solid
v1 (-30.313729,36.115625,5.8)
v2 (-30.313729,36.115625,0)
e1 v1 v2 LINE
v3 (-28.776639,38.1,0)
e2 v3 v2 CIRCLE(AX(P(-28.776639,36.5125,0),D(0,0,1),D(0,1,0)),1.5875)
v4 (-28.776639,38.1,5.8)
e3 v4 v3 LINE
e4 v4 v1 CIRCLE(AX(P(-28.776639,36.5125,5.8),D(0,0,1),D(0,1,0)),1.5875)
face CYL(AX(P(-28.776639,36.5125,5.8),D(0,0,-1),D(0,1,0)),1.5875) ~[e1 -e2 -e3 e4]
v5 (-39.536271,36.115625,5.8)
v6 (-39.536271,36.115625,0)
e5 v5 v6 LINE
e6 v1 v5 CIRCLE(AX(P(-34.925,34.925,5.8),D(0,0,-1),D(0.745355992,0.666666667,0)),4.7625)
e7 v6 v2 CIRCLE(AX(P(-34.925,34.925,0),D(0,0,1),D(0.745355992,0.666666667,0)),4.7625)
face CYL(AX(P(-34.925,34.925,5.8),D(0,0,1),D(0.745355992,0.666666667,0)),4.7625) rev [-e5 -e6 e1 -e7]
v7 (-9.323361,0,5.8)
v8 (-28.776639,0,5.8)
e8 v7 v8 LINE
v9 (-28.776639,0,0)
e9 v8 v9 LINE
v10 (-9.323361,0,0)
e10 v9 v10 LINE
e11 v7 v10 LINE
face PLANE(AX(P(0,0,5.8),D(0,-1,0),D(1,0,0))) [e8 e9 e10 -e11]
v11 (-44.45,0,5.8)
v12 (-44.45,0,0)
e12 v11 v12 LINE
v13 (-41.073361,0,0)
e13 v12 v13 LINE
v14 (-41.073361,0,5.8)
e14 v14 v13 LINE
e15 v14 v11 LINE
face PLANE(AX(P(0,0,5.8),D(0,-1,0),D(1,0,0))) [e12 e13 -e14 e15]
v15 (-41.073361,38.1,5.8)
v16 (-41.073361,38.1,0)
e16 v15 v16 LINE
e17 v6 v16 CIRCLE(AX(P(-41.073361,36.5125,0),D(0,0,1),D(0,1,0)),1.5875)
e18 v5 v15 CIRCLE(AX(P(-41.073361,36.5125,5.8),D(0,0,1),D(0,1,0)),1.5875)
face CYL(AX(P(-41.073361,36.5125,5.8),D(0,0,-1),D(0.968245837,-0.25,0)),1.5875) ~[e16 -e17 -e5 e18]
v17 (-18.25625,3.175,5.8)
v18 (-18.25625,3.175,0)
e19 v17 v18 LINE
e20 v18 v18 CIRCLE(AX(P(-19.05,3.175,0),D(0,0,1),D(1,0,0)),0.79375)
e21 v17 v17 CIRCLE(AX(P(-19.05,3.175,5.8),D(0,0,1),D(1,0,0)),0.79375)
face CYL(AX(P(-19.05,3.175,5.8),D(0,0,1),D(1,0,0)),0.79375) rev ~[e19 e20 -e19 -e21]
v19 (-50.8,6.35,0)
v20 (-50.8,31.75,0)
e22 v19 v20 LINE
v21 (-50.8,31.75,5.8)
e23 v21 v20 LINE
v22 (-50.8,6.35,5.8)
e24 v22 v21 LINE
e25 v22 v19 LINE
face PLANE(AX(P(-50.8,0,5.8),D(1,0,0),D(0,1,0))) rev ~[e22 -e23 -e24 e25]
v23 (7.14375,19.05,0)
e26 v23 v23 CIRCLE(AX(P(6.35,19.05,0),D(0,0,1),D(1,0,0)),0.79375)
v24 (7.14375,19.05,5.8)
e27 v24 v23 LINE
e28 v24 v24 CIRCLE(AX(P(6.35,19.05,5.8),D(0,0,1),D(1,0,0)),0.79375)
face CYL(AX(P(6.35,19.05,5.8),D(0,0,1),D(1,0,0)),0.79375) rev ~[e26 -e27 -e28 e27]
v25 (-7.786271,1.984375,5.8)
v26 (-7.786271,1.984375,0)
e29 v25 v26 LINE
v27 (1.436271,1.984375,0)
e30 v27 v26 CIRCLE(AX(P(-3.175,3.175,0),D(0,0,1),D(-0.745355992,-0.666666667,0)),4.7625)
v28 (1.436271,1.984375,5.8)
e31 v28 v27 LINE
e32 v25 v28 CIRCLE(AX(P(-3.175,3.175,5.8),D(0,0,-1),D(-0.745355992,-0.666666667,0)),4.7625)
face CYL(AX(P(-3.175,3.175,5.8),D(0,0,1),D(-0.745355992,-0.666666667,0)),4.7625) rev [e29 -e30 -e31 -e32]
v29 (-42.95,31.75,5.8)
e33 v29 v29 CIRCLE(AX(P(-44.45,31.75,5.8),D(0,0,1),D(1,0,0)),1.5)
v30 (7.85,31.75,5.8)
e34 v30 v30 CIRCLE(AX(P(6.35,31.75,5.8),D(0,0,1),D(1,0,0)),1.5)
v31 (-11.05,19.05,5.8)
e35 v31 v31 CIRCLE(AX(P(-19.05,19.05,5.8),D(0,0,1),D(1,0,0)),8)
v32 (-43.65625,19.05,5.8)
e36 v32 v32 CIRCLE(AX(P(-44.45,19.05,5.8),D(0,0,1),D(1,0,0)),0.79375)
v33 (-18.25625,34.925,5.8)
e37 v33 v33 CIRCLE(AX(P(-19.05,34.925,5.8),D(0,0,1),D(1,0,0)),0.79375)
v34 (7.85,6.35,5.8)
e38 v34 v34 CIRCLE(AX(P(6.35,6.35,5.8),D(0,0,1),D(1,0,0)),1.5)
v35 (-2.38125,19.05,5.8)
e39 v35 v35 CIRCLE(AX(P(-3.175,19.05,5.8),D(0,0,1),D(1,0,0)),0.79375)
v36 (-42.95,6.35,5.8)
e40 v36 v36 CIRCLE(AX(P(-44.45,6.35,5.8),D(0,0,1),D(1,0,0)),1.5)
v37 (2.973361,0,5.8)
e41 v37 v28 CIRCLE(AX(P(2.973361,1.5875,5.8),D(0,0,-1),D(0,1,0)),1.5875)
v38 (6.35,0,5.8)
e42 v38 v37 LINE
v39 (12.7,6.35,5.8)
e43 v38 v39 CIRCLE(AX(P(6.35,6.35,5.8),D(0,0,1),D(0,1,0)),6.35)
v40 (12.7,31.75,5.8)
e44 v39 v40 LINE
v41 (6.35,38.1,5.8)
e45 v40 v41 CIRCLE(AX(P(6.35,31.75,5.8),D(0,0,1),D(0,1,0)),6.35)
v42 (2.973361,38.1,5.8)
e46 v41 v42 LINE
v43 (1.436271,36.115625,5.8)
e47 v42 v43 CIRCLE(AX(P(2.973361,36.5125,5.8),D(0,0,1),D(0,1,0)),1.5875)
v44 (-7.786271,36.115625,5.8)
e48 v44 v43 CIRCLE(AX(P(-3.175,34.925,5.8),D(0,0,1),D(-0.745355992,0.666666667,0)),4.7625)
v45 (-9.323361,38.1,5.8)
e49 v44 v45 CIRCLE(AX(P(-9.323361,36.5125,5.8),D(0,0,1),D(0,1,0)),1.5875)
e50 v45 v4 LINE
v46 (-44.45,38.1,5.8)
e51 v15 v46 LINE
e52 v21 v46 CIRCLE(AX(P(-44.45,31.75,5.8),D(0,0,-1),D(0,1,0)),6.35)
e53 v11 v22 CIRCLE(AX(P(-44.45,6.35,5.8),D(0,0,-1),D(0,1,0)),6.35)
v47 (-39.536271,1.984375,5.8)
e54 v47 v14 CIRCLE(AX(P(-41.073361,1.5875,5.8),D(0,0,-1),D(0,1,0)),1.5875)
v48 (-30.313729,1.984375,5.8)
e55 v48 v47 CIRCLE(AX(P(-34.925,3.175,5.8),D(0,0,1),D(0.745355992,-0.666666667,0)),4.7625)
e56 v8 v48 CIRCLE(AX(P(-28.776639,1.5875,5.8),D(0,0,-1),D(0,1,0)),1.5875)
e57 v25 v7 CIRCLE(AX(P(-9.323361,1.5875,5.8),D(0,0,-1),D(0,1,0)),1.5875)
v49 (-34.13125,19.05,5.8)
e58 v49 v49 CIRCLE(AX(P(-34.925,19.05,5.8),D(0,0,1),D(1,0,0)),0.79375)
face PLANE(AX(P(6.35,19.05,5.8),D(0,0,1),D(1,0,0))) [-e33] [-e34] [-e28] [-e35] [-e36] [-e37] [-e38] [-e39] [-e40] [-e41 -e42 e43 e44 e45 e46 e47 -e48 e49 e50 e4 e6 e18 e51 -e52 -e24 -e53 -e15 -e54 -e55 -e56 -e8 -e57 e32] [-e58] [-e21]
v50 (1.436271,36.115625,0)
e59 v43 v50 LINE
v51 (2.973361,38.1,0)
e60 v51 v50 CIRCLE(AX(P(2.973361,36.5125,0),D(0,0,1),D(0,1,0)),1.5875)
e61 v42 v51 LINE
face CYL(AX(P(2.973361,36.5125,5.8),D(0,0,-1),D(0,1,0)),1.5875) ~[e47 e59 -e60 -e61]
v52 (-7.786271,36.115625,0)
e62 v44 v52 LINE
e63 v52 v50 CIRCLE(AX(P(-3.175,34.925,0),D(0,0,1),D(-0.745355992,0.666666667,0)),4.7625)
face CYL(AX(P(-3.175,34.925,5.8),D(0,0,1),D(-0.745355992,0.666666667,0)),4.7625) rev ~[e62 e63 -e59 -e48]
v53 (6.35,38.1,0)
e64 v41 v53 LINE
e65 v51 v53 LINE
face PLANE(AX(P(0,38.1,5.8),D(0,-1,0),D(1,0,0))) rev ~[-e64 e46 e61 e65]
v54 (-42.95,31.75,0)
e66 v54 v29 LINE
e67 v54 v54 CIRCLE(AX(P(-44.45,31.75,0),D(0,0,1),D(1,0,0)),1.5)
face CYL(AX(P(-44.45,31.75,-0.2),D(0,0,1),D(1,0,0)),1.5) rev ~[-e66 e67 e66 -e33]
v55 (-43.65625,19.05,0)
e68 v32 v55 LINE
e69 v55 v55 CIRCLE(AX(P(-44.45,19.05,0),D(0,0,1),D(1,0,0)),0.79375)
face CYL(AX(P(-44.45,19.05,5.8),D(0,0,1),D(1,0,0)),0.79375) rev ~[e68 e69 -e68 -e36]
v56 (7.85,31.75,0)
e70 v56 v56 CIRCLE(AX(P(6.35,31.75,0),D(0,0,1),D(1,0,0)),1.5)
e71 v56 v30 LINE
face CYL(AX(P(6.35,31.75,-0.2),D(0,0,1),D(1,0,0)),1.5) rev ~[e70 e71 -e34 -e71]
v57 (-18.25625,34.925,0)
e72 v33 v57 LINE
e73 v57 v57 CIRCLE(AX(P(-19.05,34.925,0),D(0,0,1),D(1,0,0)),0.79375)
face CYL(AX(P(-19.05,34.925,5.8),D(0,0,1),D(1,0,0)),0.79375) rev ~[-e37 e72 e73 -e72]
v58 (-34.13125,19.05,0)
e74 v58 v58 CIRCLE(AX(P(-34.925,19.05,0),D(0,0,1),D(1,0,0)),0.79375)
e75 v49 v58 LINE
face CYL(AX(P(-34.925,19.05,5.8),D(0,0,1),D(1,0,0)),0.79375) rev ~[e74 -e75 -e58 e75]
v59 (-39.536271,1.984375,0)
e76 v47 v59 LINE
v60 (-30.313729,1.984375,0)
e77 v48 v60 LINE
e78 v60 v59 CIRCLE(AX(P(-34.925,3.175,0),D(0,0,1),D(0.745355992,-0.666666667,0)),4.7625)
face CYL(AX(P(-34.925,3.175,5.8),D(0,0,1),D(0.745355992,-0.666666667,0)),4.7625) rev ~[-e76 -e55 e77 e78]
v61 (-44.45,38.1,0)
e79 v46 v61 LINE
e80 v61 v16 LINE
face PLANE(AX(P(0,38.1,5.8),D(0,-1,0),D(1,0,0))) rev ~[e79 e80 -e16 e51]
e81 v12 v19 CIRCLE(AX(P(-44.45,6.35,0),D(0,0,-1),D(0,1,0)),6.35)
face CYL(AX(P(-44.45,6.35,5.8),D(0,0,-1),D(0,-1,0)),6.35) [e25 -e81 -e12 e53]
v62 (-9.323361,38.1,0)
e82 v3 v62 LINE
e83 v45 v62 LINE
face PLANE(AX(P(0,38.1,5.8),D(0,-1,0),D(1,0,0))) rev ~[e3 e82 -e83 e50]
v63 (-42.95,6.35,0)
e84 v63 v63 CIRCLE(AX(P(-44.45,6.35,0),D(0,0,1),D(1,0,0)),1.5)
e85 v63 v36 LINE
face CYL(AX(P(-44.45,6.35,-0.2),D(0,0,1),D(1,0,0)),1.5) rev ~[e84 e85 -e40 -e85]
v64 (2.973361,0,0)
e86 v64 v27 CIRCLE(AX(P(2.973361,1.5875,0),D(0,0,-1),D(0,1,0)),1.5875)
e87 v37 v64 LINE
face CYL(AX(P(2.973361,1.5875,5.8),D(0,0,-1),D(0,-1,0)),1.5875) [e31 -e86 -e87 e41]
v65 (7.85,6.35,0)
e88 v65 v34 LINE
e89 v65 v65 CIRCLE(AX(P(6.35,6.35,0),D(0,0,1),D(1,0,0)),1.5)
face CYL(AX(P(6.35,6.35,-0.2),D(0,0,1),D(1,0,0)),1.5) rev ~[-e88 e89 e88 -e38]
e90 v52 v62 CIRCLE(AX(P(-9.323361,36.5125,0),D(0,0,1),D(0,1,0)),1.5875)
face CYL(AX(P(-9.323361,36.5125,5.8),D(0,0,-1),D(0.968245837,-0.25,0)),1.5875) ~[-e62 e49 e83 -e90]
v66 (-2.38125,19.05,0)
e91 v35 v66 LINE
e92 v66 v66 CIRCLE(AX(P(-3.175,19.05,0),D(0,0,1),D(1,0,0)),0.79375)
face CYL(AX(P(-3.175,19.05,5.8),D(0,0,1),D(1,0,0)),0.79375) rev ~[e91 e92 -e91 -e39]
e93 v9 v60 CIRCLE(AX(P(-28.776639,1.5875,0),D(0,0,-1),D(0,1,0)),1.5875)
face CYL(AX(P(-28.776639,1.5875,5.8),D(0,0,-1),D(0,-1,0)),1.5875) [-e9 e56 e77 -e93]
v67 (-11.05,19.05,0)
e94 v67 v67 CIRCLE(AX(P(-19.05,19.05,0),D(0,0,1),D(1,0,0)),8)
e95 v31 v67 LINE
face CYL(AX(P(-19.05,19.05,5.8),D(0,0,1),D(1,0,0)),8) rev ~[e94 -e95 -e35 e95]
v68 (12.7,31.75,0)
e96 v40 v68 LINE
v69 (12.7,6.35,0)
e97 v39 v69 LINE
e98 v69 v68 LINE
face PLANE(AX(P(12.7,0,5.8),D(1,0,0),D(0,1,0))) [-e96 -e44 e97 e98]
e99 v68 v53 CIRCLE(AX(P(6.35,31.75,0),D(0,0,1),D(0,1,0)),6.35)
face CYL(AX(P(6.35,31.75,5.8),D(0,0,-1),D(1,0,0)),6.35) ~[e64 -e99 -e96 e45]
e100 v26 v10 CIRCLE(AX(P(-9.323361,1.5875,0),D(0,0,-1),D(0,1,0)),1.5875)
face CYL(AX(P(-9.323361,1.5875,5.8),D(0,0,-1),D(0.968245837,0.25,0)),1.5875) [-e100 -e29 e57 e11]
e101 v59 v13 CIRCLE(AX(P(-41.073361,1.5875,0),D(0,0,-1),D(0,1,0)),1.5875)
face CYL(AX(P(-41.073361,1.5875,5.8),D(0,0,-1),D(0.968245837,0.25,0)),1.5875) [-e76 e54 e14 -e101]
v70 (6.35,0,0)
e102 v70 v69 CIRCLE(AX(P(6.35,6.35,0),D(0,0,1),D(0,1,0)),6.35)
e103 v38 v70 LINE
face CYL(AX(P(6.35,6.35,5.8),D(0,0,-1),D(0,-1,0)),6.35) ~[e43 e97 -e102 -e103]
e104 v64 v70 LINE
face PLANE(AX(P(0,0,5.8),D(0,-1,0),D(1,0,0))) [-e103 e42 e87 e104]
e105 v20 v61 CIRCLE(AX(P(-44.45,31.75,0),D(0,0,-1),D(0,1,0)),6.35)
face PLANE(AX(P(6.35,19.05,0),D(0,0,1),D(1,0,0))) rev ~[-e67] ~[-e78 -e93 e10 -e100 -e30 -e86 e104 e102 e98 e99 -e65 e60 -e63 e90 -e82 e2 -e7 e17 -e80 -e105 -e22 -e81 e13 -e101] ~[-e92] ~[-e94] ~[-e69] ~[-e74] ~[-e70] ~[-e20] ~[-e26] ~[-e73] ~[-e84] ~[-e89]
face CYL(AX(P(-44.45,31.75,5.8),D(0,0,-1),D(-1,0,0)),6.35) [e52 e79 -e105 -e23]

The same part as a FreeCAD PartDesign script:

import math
import FreeCAD as App
import Part
import Sketcher
Q = App.Units.Quantity


def edges_at(feature, points):
    """Names of the edges that pass closest to the given points."""
    edges = feature.Shape.Edges
    near = lambda p: min(range(len(edges)), key=lambda i: edges[i].distToShape(Part.Vertex(*p))[0])
    return sorted({f"Edge{near(p) + 1}" for p in points})


def add_polygon(sketch, points):
    """Adds a closed chain of lines whose ends are joined by coincident constraints."""
    first, n = sketch.GeometryCount, len(points)
    for a, b in zip(points, points[1:] + points[:1]):
        sketch.addGeometry(Part.LineSegment(App.Vector(*a, 0), App.Vector(*b, 0)), False)
    for i in range(n):
        sketch.addConstraint(Sketcher.Constraint("Coincident", first + i, 2, first + (i + 1) % n, 1))

doc = App.newDocument("Part")
body = doc.addObject("PartDesign::Body", "Body")

sketch1 = body.newObject("Sketcher::SketchObject", "Sketch")
sketch1.AttachmentSupport = (doc.getObject("XY_Plane"), [""])
sketch1.MapMode = "FlatFace"
add_polygon(sketch1, [(-38.1, 38.1), (-38.1, 0), (0, 0), (0, 38.1)])
sketch1.addConstraint([
    Sketcher.Constraint("Vertical", 0),
    Sketcher.Constraint("Horizontal", 1),
    Sketcher.Constraint("Vertical", 2),
    Sketcher.Constraint("Horizontal", 3),
    Sketcher.Constraint("Coincident", 1, 2, -1, 1),
    Sketcher.Constraint("Equal", 3, 0),
    Sketcher.Constraint("DistanceX", 1, 1, 1, 2, Q("1.5 in")),
])
pad1 = body.newObject("PartDesign::Pad", "Pad")
pad1.Profile = sketch1
pad1.Length = 5.8

sketch2 = body.newObject("Sketcher::SketchObject", "Sketch001")
sketch2.AttachmentSupport = (doc.getObject("XY_Plane"), [""])
sketch2.MapMode = "FlatFace"
sketch2.AttachmentOffset = App.Placement(App.Vector(0, 0, 5.8), App.Rotation())
sketch2.addGeometry(Part.Circle(App.Vector(-19.05, 19.05, 0), App.Vector(0, 0, 1), 8), False)
sketch2.addConstraint([
    Sketcher.Constraint("Diameter", 0, Q("16 mm")),
    Sketcher.Constraint("DistanceX", 0, 3, -1, 1, Q("0.75 in")),
    Sketcher.Constraint("DistanceY", -1, 1, 0, 3, Q("0.75 in")),
])
pocket1 = body.newObject("PartDesign::Pocket", "Pocket")
pocket1.Profile = sketch2
pocket1.Length = Q("0.5 in")

sketch3 = body.newObject("Sketcher::SketchObject", "Sketch002")
sketch3.AttachmentSupport = (doc.getObject("XY_Plane"), [""])
sketch3.MapMode = "FlatFace"
sketch3.AttachmentOffset = App.Placement(App.Vector(0, 0, 5.8), App.Rotation())
sketch3.addGeometry([
    Part.Circle(App.Vector(-34.925, 19.05, 0), App.Vector(0, 0, 1), 0.79375),
    Part.Circle(App.Vector(-19.05, 34.925, 0), App.Vector(0, 0, 1), 0.79375),
    Part.Circle(App.Vector(-3.175, 19.05, 0), App.Vector(0, 0, 1), 0.79375),
    Part.Circle(App.Vector(-19.05, 3.175, 0), App.Vector(0, 0, 1), 0.79375),
], False)
sketch3.addConstraint([
    Sketcher.Constraint("Equal", 0, 1),
    Sketcher.Constraint("Equal", 1, 2),
    Sketcher.Constraint("Equal", 2, 3),
    Sketcher.Constraint("Horizontal", 0, 3, 2, 3),
    Sketcher.Constraint("Vertical", 1, 3, 3, 3),
    Sketcher.Constraint("Diameter", 0, Q("0.0625 in")),
    Sketcher.Constraint("DistanceY", -1, 1, 0, 3, Q("0.75 in")),
    Sketcher.Constraint("DistanceX", 1, 3, -1, 1, Q("0.75 in")),
    Sketcher.Constraint("DistanceX", 0, 3, 2, 3, Q("1.25 in")),
    Sketcher.Constraint("DistanceY", 3, 3, 1, 3, Q("1.25 in")),
    Sketcher.Constraint("DistanceX", 0, 3, -1, 1, Q("1.375 in")),
    Sketcher.Constraint("DistanceY", -1, 1, 1, 3, Q("1.375 in")),
])
pocket2 = body.newObject("PartDesign::Pocket", "Pocket001")
pocket2.Profile = sketch3
pocket2.Type = "ThroughAll"

sketch4 = body.newObject("Sketcher::SketchObject", "Sketch003")
sketch4.AttachmentSupport = (doc.getObject("XY_Plane"), [""])
sketch4.MapMode = "FlatFace"
sketch4.AttachmentOffset = App.Placement(App.Vector(0, 0, 5.8), App.Rotation())
add_polygon(sketch4, [(0, 38.1), (0, 0), (12.7, 0), (12.7, 38.1)])
add_polygon(sketch4, [(-50.8, 38.1), (-50.8, 0), (-38.1, 0), (-38.1, 38.1)])
sketch4.addConstraint([
    Sketcher.Constraint("Vertical", 0),
    Sketcher.Constraint("Horizontal", 1),
    Sketcher.Constraint("Vertical", 2),
    Sketcher.Constraint("Horizontal", 3),
    Sketcher.Constraint("Vertical", 4),
    Sketcher.Constraint("Horizontal", 5),
    Sketcher.Constraint("Vertical", 6),
    Sketcher.Constraint("Horizontal", 7),
    Sketcher.Constraint("Coincident", 0, 2, -1, 1),
    Sketcher.Constraint("PointOnObject", 4, 2, -1),
    Sketcher.Constraint("Horizontal", 3, 2, 6, 2),
    Sketcher.Constraint("Equal", 3, 5),
    Sketcher.Constraint("DistanceX", 1, 1, 1, 2, Q("0.5 in")),
    Sketcher.Constraint("DistanceY", 0, 2, 0, 1, Q("1.5 in")),
    Sketcher.Constraint("DistanceX", 4, 2, -1, 1, Q("2 in")),
])
pad2 = body.newObject("PartDesign::Pad", "Pad001")
pad2.Profile = sketch4
pad2.Length = 5.8
pad2.Reversed = True

sketch5 = body.newObject("Sketcher::SketchObject", "Sketch004")
sketch5.AttachmentSupport = (doc.getObject("XY_Plane"), [""])
sketch5.MapMode = "FlatFace"
sketch5.AttachmentOffset = App.Placement(App.Vector(0, 0, 5.8), App.Rotation())
sketch5.addGeometry([
    Part.ArcOfCircle(Part.Circle(App.Vector(-34.925, 34.925, 0), App.Vector(0, 0, 1), 4.7625), math.radians(138.189685), math.radians(401.810315)),
    Part.LineSegment(App.Vector(-31.375242, 38.1, 0), App.Vector(-38.474758, 38.1, 0)),
    Part.ArcOfCircle(Part.Circle(App.Vector(-3.175, 34.925, 0), App.Vector(0, 0, 1), 4.7625), math.radians(138.189685), math.radians(401.810315)),
    Part.LineSegment(App.Vector(0.374758, 38.1, 0), App.Vector(-6.724758, 38.1, 0)),
    Part.ArcOfCircle(Part.Circle(App.Vector(-3.175, 3.175, 0), App.Vector(0, 0, 1), 4.7625), math.radians(-41.810315), math.radians(221.810315)),
    Part.LineSegment(App.Vector(-6.724758, 0, 0), App.Vector(0.374758, 0, 0)),
    Part.ArcOfCircle(Part.Circle(App.Vector(-34.925, 3.175, 0), App.Vector(0, 0, 1), 4.7625), math.radians(-41.810315), math.radians(221.810315)),
    Part.LineSegment(App.Vector(-38.474758, 0, 0), App.Vector(-31.375242, 0, 0)),
], False)
sketch5.addConstraint([
    Sketcher.Constraint("Coincident", 0, 1, 1, 2),
    Sketcher.Constraint("Coincident", 1, 1, 0, 2),
    Sketcher.Constraint("Coincident", 2, 1, 3, 2),
    Sketcher.Constraint("Coincident", 3, 1, 2, 2),
    Sketcher.Constraint("Coincident", 4, 1, 5, 2),
    Sketcher.Constraint("Coincident", 5, 1, 4, 2),
    Sketcher.Constraint("Coincident", 6, 1, 7, 2),
    Sketcher.Constraint("Coincident", 7, 1, 6, 2),
    Sketcher.Constraint("Horizontal", 1),
    Sketcher.Constraint("Horizontal", 3),
    Sketcher.Constraint("Horizontal", 5),
    Sketcher.Constraint("Horizontal", 7),
    Sketcher.Constraint("Equal", 0, 2),
    Sketcher.Constraint("Equal", 2, 4),
    Sketcher.Constraint("Equal", 4, 6),
    Sketcher.Constraint("PointOnObject", 4, 1, -1),
    Sketcher.Constraint("PointOnObject", 6, 1, -1),
    Sketcher.Constraint("Horizontal", 0, 3, 2, 3),
    Sketcher.Constraint("Horizontal", 4, 3, 6, 3),
    Sketcher.Constraint("Horizontal", 1, 1, 2, 1),
    Sketcher.Constraint("Vertical", 2, 3, 4, 3),
    Sketcher.Constraint("Vertical", 0, 3, 6, 3),
    Sketcher.Constraint("Vertical", 3, 1, 4, 1),
    Sketcher.Constraint("Radius", 0, Q("0.1875 in")),
    Sketcher.Constraint("DistanceY", -1, 1, 0, 1, Q("1.5 in")),
    Sketcher.Constraint("DistanceX", 0, 3, 2, 3, Q("1.25 in")),
    Sketcher.Constraint("DistanceY", 4, 3, 2, 3, Q("1.25 in")),
    Sketcher.Constraint("DistanceX", 0, 3, -1, 1, Q("1.375 in")),
])
pocket3 = body.newObject("PartDesign::Pocket", "Pocket002")
pocket3.Profile = sketch5
pocket3.Type = "ThroughAll"

sketch6 = body.newObject("Sketcher::SketchObject", "Sketch005")
sketch6.AttachmentSupport = (doc.getObject("XY_Plane"), [""])
sketch6.MapMode = "FlatFace"
sketch6.AttachmentOffset = App.Placement(App.Vector(0, 0, 5.8), App.Rotation())
sketch6.addGeometry([
    Part.Circle(App.Vector(-44.45, 31.75, 0), App.Vector(0, 0, 1), 1.25),
    Part.Circle(App.Vector(6.35, 31.75, 0), App.Vector(0, 0, 1), 1.25),
    Part.Circle(App.Vector(6.35, 6.35, 0), App.Vector(0, 0, 1), 1.25),
    Part.Circle(App.Vector(-44.45, 6.35, 0), App.Vector(0, 0, 1), 1.25),
], False)
sketch6.addConstraint([
    Sketcher.Constraint("Equal", 0, 1),
    Sketcher.Constraint("Equal", 1, 2),
    Sketcher.Constraint("Equal", 2, 3),
    Sketcher.Constraint("Horizontal", 0, 3, 1, 3),
    Sketcher.Constraint("Horizontal", 2, 3, 3, 3),
    Sketcher.Constraint("Vertical", 1, 3, 2, 3),
    Sketcher.Constraint("Vertical", 0, 3, 3, 3),
    Sketcher.Constraint("DistanceX", 0, 3, 1, 3, Q("2 in")),
    Sketcher.Constraint("DistanceY", 2, 3, 1, 3, Q("1 in")),
    Sketcher.Constraint("Diameter", 0, Q("2.5 mm")),
    Sketcher.Constraint("DistanceX", 0, 3, -1, 1, Q("1.75 in")),
    Sketcher.Constraint("DistanceY", -1, 1, 0, 3, Q("1.25 in")),
])
doc.recompute()
hole = body.newObject("PartDesign::Hole", "Hole")
hole.Profile = sketch6
hole.ThreadType = "None"
hole.Diameter = 2.5
hole.DepthType = "Dimension"
hole.Depth = 7.5
hole.DrillPoint = "Angled"
hole.DrillPointAngle = 118
hole.HoleCutType = "Counterbore"
hole.HoleCutDiameter = 3
hole.HoleCutDepth = 6

sketch7 = body.newObject("Sketcher::SketchObject", "Sketch006")
sketch7.AttachmentSupport = (doc.getObject("XY_Plane"), [""])
sketch7.MapMode = "FlatFace"
sketch7.AttachmentOffset = App.Placement(App.Vector(0, 0, 5.8), App.Rotation())
sketch7.addGeometry([
    Part.Circle(App.Vector(-44.45, 19.05, 0), App.Vector(0, 0, 1), 0.79375),
    Part.Circle(App.Vector(6.35, 19.05, 0), App.Vector(0, 0, 1), 0.79375),
], False)
sketch7.addConstraint([
    Sketcher.Constraint("Equal", 0, 1),
    Sketcher.Constraint("Horizontal", 0, 3, 1, 3),
    Sketcher.Constraint("Diameter", 0, Q("0.0625 in")),
    Sketcher.Constraint("DistanceX", 0, 3, 1, 3, Q("2 in")),
    Sketcher.Constraint("DistanceX", 0, 3, -1, 1, Q("1.75 in")),
    Sketcher.Constraint("DistanceY", -1, 1, 0, 3, Q("0.75 in")),
])
pocket4 = body.newObject("PartDesign::Pocket", "Pocket003")
pocket4.Profile = sketch7
pocket4.Type = "ThroughAll"
doc.recompute()

fillet = body.newObject("PartDesign::Fillet", "Fillet")
fillet.Base = (pocket4, edges_at(pocket4, [
    (12.7, 38.1, 2.9),
    (12.7, 0, 2.9),
    (-50.8, 0, 2.9),
    (-50.8, 38.1, 2.9),
]))
fillet.Radius = Q("0.25 in")
doc.recompute()

fillet2 = body.newObject("PartDesign::Fillet", "Fillet001")
fillet2.Base = (fillet, edges_at(fillet, [
    (-38.475, 38.1, 2.9),
    (-31.375, 38.1, 2.9),
    (0.375, 0, 2.9),
    (-6.725, 0, 2.9),
    (0.375, 38.1, 2.9),
    (-6.725, 38.1, 2.9),
    (-38.475, 0, 2.9),
    (-31.375, 0, 2.9),
]))
fillet2.Radius = Q("0.0625 in")

doc.recompute()
